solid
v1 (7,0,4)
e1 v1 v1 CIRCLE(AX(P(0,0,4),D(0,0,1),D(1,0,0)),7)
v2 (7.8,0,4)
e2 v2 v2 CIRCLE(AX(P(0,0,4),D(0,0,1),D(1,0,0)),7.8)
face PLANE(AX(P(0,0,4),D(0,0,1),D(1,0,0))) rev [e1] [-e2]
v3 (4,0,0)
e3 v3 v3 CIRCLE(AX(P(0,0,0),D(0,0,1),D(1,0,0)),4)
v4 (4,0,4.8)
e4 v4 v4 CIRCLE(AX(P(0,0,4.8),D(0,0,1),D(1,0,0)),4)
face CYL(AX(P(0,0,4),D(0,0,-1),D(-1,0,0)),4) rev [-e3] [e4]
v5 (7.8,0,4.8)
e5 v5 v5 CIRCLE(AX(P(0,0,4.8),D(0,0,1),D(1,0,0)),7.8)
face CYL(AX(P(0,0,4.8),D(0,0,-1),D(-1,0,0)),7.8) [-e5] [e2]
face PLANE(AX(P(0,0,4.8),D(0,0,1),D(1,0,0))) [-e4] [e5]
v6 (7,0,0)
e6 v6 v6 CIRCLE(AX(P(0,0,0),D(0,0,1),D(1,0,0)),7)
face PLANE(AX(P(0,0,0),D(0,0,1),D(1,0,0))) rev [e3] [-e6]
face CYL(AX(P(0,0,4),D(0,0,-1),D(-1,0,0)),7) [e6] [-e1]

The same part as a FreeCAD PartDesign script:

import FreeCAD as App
import Part
import Sketcher
Q = App.Units.Quantity

doc = App.newDocument("Part")
params = doc.addObject("Spreadsheet::Sheet", "Params")
for row, (alias, value) in enumerate([
    ("sketch1_diameter", "14 mm"),
    ("sketch1_diameter2", "8 mm"),
    ("pad1_length", "4 mm"),
    ("sketch2_diameter", "8 mm"),
    ("sketch2_diameter2", "15.6 mm"),
    ("pad2_length", "0.8 mm"),
], start=1):
    params.set(f"A{row}", alias)
    params.set(f"B{row}", "=" + value)
    params.setAlias(f"B{row}", alias)

body = doc.addObject("PartDesign::Body", "Body")

# Sketch on XY plane
sketch1 = body.newObject("Sketcher::SketchObject", "Sketch")
sketch1.AttachmentSupport = (doc.getObject("XY_Plane"), [""])
sketch1.MapMode = "FlatFace"
sketch1.addGeometry([
    Part.Circle(App.Vector(0, 0, 0), App.Vector(0, 0, 1), 7),
    Part.Circle(App.Vector(0, 0, 0), App.Vector(0, 0, 1), 4),
], False)
sketch1.addConstraint([
    Sketcher.Constraint("Coincident", 0, 3, -1, 1),
    Sketcher.Constraint("Coincident", 1, 3, -1, 1),
    Sketcher.Constraint("Diameter", 0, Q("14 mm")),
    Sketcher.Constraint("Diameter", 1, Q("8 mm")),
])
sketch1.setExpression("Constraints[2]", "Params.sketch1_diameter")
sketch1.setExpression("Constraints[3]", "Params.sketch1_diameter2")
pad1 = body.newObject("PartDesign::Pad", "Pad")
pad1.Profile = sketch1
pad1.setExpression("Length", "Params.pad1_length")

# Sketch on XY plane
sketch2 = body.newObject("Sketcher::SketchObject", "Sketch001")
sketch2.AttachmentSupport = (doc.getObject("XY_Plane"), [""])
sketch2.MapMode = "FlatFace"
sketch2.AttachmentOffset = App.Placement(App.Vector(0, 0, 4), App.Rotation())
sketch2.addGeometry([
    Part.Circle(App.Vector(0, 0, 0), App.Vector(0, 0, 1), 7.8),
    Part.Circle(App.Vector(0, 0, 0), App.Vector(0, 0, 1), 4),
], False)
sketch2.addConstraint([
    Sketcher.Constraint("Coincident", 0, 3, -1, 1),
    Sketcher.Constraint("Coincident", 1, 3, -1, 1),
    Sketcher.Constraint("Diameter", 1, Q("8 mm")),
    Sketcher.Constraint("Diameter", 0, Q("15.6 mm")),
])
sketch2.setExpression("Constraints[2]", "Params.sketch2_diameter")
sketch2.setExpression("Constraints[3]", "Params.sketch2_diameter2")
pad2 = body.newObject("PartDesign::Pad", "Pad001")
pad2.Profile = sketch2
pad2.setExpression("Length", "Params.pad2_length")

doc.recompute()
